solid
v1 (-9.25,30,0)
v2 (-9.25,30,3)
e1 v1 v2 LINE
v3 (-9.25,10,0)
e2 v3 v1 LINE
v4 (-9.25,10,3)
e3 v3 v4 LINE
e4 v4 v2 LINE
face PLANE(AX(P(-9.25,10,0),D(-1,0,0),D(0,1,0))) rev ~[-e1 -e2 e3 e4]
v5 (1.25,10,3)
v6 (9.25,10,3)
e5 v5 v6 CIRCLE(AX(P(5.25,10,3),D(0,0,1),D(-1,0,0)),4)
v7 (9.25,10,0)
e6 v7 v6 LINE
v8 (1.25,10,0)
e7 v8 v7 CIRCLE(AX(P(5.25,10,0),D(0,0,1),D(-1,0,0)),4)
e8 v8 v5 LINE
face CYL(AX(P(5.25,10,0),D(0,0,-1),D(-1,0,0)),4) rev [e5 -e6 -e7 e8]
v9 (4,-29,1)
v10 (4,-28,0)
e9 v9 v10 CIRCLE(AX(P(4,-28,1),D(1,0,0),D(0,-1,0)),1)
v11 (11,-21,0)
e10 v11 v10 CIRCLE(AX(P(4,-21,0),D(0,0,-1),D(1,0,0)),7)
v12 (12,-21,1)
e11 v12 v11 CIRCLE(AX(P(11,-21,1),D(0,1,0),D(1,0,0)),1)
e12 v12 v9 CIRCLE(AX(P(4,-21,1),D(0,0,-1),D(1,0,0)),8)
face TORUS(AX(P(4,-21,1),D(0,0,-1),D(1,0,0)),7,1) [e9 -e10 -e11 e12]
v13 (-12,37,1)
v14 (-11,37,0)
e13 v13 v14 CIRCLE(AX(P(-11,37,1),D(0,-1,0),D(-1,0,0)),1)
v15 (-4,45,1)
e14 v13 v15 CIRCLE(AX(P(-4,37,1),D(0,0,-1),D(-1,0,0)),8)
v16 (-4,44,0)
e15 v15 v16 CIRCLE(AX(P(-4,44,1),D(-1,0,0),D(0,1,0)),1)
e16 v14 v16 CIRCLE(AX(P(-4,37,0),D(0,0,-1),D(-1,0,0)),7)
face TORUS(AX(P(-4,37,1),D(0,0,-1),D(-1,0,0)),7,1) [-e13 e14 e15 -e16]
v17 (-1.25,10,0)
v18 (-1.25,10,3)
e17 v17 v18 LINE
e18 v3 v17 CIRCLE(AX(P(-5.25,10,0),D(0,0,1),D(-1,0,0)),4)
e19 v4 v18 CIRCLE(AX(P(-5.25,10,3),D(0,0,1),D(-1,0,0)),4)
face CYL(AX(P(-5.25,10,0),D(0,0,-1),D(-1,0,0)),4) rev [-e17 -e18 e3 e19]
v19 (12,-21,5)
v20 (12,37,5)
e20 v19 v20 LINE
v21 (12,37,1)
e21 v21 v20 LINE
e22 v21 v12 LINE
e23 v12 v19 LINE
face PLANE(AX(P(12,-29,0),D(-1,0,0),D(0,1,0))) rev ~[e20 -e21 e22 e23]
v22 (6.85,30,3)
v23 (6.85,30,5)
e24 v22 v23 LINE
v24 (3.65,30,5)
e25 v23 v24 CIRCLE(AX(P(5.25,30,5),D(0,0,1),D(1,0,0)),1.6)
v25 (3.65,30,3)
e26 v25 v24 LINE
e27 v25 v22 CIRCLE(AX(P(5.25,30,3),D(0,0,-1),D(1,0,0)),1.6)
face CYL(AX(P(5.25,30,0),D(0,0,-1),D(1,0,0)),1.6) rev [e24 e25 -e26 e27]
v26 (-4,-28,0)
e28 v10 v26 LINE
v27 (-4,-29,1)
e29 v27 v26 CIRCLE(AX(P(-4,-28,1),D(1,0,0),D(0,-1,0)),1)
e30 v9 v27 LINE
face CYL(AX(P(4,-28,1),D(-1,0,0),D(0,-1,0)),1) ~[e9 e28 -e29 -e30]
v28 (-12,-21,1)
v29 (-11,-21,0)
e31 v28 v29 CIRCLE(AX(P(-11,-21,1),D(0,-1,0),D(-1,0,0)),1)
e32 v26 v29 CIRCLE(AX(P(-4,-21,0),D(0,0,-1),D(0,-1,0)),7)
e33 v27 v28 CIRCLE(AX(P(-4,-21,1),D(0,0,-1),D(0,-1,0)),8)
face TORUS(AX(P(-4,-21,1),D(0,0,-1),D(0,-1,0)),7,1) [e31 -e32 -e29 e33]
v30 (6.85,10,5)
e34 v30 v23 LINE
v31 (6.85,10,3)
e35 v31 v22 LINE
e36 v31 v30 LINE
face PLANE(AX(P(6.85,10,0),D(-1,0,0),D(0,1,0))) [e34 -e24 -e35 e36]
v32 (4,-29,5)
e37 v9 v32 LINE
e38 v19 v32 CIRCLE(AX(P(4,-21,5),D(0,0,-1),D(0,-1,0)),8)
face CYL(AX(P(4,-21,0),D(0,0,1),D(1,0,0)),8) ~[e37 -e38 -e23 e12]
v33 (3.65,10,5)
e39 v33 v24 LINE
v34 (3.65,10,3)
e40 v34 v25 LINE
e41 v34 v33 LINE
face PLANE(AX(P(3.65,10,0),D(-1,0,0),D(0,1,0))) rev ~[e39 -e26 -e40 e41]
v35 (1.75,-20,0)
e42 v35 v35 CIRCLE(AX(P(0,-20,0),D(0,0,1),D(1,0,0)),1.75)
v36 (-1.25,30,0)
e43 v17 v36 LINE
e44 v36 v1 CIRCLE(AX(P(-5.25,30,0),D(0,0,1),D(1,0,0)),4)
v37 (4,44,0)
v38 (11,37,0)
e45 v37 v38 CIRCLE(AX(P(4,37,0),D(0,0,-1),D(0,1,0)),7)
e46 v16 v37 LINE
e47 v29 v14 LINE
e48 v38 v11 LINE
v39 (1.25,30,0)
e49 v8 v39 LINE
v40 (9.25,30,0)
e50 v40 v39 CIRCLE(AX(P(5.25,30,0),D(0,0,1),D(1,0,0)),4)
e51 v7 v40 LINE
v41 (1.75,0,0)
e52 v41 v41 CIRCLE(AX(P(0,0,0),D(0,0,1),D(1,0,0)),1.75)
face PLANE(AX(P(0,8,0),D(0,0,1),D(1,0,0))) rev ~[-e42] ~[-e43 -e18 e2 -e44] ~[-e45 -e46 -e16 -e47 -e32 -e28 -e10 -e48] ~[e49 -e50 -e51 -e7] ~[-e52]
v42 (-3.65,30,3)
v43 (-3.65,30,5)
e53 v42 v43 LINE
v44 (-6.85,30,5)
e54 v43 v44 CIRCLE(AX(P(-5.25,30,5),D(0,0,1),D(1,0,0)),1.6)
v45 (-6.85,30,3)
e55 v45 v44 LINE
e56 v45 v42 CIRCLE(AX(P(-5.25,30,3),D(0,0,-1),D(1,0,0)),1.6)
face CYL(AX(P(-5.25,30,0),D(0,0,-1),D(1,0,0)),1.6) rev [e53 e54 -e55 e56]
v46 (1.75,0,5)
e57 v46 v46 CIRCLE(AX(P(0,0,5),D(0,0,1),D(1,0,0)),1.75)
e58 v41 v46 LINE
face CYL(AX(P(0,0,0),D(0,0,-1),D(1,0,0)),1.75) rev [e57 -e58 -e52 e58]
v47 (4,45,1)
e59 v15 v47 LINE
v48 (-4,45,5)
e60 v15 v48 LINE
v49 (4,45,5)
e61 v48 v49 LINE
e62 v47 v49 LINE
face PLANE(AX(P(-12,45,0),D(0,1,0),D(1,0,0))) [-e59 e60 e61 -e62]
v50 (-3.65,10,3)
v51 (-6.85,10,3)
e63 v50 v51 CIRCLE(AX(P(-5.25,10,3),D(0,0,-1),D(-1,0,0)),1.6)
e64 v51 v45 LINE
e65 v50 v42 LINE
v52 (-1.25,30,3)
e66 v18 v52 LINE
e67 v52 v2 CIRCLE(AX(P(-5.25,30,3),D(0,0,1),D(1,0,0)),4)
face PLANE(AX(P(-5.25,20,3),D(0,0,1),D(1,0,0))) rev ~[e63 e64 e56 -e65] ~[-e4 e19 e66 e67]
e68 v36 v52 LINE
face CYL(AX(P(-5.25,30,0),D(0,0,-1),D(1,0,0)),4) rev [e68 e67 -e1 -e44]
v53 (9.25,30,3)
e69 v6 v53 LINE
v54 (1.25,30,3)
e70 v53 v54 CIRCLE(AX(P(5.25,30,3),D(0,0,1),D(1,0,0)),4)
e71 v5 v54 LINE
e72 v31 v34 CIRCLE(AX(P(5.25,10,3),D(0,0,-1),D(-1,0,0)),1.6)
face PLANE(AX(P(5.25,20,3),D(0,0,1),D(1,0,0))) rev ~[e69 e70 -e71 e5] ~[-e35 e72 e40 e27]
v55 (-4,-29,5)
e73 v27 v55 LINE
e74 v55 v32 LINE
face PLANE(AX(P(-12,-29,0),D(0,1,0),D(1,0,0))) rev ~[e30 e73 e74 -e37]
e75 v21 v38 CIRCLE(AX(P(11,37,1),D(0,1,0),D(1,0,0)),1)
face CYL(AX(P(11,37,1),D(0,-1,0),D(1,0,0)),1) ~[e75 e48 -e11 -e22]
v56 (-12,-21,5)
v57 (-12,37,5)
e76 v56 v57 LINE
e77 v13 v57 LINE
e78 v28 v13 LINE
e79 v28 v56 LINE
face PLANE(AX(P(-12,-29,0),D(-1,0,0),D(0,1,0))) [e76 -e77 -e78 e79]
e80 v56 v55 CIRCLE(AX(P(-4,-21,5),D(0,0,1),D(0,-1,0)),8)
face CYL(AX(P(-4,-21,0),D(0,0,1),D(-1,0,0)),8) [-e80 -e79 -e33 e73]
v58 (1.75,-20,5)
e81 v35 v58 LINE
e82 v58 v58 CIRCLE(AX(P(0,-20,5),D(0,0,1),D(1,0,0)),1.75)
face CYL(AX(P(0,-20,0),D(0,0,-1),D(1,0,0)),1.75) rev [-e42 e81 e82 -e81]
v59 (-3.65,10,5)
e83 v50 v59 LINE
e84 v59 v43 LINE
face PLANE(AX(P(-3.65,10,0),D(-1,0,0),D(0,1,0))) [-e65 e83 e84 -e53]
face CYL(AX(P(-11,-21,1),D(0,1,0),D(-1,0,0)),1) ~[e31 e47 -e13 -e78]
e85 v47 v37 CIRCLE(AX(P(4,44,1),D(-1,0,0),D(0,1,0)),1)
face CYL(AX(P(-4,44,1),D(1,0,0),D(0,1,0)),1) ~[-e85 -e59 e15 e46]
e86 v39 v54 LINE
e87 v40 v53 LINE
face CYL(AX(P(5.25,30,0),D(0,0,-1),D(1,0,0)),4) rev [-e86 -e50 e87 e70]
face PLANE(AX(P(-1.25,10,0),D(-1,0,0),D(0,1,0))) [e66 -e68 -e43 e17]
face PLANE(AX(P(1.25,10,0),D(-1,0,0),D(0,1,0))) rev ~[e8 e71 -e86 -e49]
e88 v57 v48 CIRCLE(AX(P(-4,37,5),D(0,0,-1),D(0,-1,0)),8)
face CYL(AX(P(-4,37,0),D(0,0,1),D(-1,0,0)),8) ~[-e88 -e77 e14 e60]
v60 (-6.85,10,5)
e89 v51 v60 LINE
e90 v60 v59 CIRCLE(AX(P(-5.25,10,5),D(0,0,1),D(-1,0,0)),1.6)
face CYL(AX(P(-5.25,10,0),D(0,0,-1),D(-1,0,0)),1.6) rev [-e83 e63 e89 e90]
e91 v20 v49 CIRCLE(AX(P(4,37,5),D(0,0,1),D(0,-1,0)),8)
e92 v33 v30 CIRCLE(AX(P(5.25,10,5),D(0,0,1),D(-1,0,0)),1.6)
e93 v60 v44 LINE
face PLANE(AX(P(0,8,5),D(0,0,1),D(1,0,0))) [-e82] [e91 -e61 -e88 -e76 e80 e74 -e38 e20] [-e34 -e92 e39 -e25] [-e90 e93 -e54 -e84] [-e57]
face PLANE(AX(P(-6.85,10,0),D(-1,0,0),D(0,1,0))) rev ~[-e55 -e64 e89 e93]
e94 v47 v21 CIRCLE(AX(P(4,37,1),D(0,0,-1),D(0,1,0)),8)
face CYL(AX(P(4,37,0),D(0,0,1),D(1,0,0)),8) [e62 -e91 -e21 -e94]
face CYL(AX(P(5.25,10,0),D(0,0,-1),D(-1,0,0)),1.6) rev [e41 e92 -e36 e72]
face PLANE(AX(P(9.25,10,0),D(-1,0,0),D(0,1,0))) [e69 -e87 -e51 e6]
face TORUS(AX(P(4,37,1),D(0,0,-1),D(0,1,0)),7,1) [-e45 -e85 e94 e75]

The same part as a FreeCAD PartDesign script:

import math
import FreeCAD as App
import Part
import Sketcher
from FreeCAD import Vector


def edges_at(feature, points):
    """Names of the edges that pass closest to the given points."""
    edges = feature.Shape.Edges
    near = lambda p: min(range(len(edges)), key=lambda i: edges[i].distToShape(Part.Vertex(*p))[0])
    return sorted({f"Edge{near(p) + 1}" for p in points})

doc = App.newDocument("Part")
body = doc.addObject("PartDesign::Body", "Body")

sketch1 = doc.addObject("Sketcher::SketchObject", "Sketch")
body.addObject(sketch1)
sketch1.AttachmentSupport = (doc.XY_Plane, [""])
sketch1.MapMode = "FlatFace"
sketch1.addGeometry(Part.LineSegment(Vector(-12, 45, 0), Vector(-12, -29, 0)), False)
sketch1.addGeometry(Part.LineSegment(Vector(-12, -29, 0), Vector(12, -29, 0)), False)
sketch1.addGeometry(Part.LineSegment(Vector(12, -29, 0), Vector(12, 45, 0)), False)
sketch1.addGeometry(Part.LineSegment(Vector(12, 45, 0), Vector(-12, 45, 0)), False)
sketch1.addGeometry(Part.Circle(Vector(0, -20, 0), Vector(0, 0, 1), 1.75), False)
sketch1.addGeometry(Part.Circle(Vector(0, 0, 0), Vector(0, 0, 1), 1.75), False)
sketch1.addGeometry(Part.ArcOfCircle(Part.Circle(Vector(-5.25, 10, 0), Vector(0, 0, 1), 1.6), math.radians(180), math.radians(360)), False)
sketch1.addGeometry(Part.LineSegment(Vector(-6.85, 10, 0), Vector(-6.85, 30, 0)), False)
sketch1.addGeometry(Part.ArcOfCircle(Part.Circle(Vector(-5.25, 30, 0), Vector(0, 0, 1), 1.6), math.radians(0), math.radians(180)), False)
sketch1.addGeometry(Part.LineSegment(Vector(-3.65, 30, 0), Vector(-3.65, 10, 0)), False)
sketch1.addGeometry(Part.ArcOfCircle(Part.Circle(Vector(5.25, 10, 0), Vector(0, 0, 1), 1.6), math.radians(180), math.radians(360)), False)
sketch1.addGeometry(Part.LineSegment(Vector(3.65, 10, 0), Vector(3.65, 30, 0)), False)
sketch1.addGeometry(Part.ArcOfCircle(Part.Circle(Vector(5.25, 30, 0), Vector(0, 0, 1), 1.6), math.radians(0), math.radians(180)), False)
sketch1.addGeometry(Part.LineSegment(Vector(6.85, 30, 0), Vector(6.85, 10, 0)), False)
sketch1.addConstraint(Sketcher.Constraint("Coincident", 0, 2, 1, 1))
sketch1.addConstraint(Sketcher.Constraint("Coincident", 1, 2, 2, 1))
sketch1.addConstraint(Sketcher.Constraint("Coincident", 2, 2, 3, 1))
sketch1.addConstraint(Sketcher.Constraint("Coincident", 3, 2, 0, 1))
sketch1.addConstraint(Sketcher.Constraint("Tangent", 6, 1, 7, 1))
sketch1.addConstraint(Sketcher.Constraint("Tangent", 7, 2, 8, 2))
sketch1.addConstraint(Sketcher.Constraint("Tangent", 8, 1, 9, 1))
sketch1.addConstraint(Sketcher.Constraint("Tangent", 9, 2, 6, 2))
sketch1.addConstraint(Sketcher.Constraint("Tangent", 10, 1, 11, 1))
sketch1.addConstraint(Sketcher.Constraint("Tangent", 11, 2, 12, 2))
sketch1.addConstraint(Sketcher.Constraint("Tangent", 12, 1, 13, 1))
sketch1.addConstraint(Sketcher.Constraint("Tangent", 13, 2, 10, 2))
sketch1.addConstraint(Sketcher.Constraint("Vertical", 0))
sketch1.addConstraint(Sketcher.Constraint("Horizontal", 1))
sketch1.addConstraint(Sketcher.Constraint("Vertical", 2))
sketch1.addConstraint(Sketcher.Constraint("Horizontal", 3))
sketch1.addConstraint(Sketcher.Constraint("Vertical", 7))
sketch1.addConstraint(Sketcher.Constraint("Vertical", 9))
sketch1.addConstraint(Sketcher.Constraint("Vertical", 11))
sketch1.addConstraint(Sketcher.Constraint("Vertical", 13))
sketch1.addConstraint(Sketcher.Constraint("Coincident", 5, 3, -1, 1))
sketch1.addConstraint(Sketcher.Constraint("Equal", 4, 5))
sketch1.addConstraint(Sketcher.Constraint("Equal", 8, 10))
sketch1.addConstraint(Sketcher.Constraint("Symmetric", 6, 3, 10, 3, -2))
sketch1.addConstraint(Sketcher.Constraint("PointOnObject", 4, 3, -2))
sketch1.addConstraint(Sketcher.Constraint("Horizontal", 8, 3, 12, 3))
sketch1.addConstraint(Sketcher.Constraint("Diameter", 4, 3.5))
sketch1.addConstraint(Sketcher.Constraint("Radius", 6, 1.6))
sketch1.addConstraint(Sketcher.Constraint("DistanceX", 1, 1, 1, 2, 24.0))
sketch1.addConstraint(Sketcher.Constraint("DistanceY", 0, 2, 0, 1, 74.0))
sketch1.addConstraint(Sketcher.Constraint("DistanceY", 7, 1, 7, 2, 20.0))
sketch1.addConstraint(Sketcher.Constraint("DistanceY", 4, 3, -1, 1, 20.0))
sketch1.addConstraint(Sketcher.Constraint("DistanceY", -1, 1, 6, 3, 10.0))
sketch1.addConstraint(Sketcher.Constraint("DistanceX", 0, 2, -1, 1, 12.0))
sketch1.addConstraint(Sketcher.Constraint("DistanceY", 0, 2, -1, 1, 29.0))
sketch1.addConstraint(Sketcher.Constraint("DistanceX", 6, 3, 10, 3, 10.5))
pad1 = doc.addObject("PartDesign::Pad", "Pad")
body.addObject(pad1)
pad1.Profile = sketch1
pad1.Length = 5

sketch2 = doc.addObject("Sketcher::SketchObject", "Sketch001")
body.addObject(sketch2)
sketch2.AttachmentSupport = (doc.XY_Plane, [""])
sketch2.MapMode = "FlatFace"
sketch2.addGeometry(Part.Circle(Vector(0, 0, 0), Vector(0, 0, 1), 1.75), False)
sketch2.addGeometry(Part.Circle(Vector(0, -20, 0), Vector(0, 0, 1), 1.75), False)
sketch2.addGeometry(Part.ArcOfCircle(Part.Circle(Vector(5.25, 10, 0), Vector(0, 0, 1), 4), math.radians(180), math.radians(360)), False)
sketch2.addGeometry(Part.LineSegment(Vector(9.25, 10, 0), Vector(9.25, 30, 0)), False)
sketch2.addGeometry(Part.ArcOfCircle(Part.Circle(Vector(5.25, 30, 0), Vector(0, 0, 1), 4), math.radians(0), math.radians(180)), False)
sketch2.addGeometry(Part.LineSegment(Vector(1.25, 30, 0), Vector(1.25, 10, 0)), False)
sketch2.addGeometry(Part.ArcOfCircle(Part.Circle(Vector(-5.25, 10, 0), Vector(0, 0, 1), 4), math.radians(180), math.radians(360)), False)
sketch2.addGeometry(Part.LineSegment(Vector(-1.25, 10, 0), Vector(-1.25, 30, 0)), False)
sketch2.addGeometry(Part.ArcOfCircle(Part.Circle(Vector(-5.25, 30, 0), Vector(0, 0, 1), 4), math.radians(0), math.radians(180)), False)
sketch2.addGeometry(Part.LineSegment(Vector(-9.25, 30, 0), Vector(-9.25, 10, 0)), False)
sketch2.addConstraint(Sketcher.Constraint("Tangent", 2, 2, 3, 1))
sketch2.addConstraint(Sketcher.Constraint("Tangent", 3, 2, 4, 1))
sketch2.addConstraint(Sketcher.Constraint("Tangent", 4, 2, 5, 1))
sketch2.addConstraint(Sketcher.Constraint("Tangent", 5, 2, 2, 1))
sketch2.addConstraint(Sketcher.Constraint("Tangent", 6, 2, 7, 1))
sketch2.addConstraint(Sketcher.Constraint("Tangent", 7, 2, 8, 1))
sketch2.addConstraint(Sketcher.Constraint("Tangent", 8, 2, 9, 1))
sketch2.addConstraint(Sketcher.Constraint("Tangent", 9, 2, 6, 1))
sketch2.addConstraint(Sketcher.Constraint("Vertical", 3))
sketch2.addConstraint(Sketcher.Constraint("Vertical", 5))
sketch2.addConstraint(Sketcher.Constraint("Vertical", 7))
sketch2.addConstraint(Sketcher.Constraint("Vertical", 9))
sketch2.addConstraint(Sketcher.Constraint("Coincident", 0, 3, -1, 1))
sketch2.addConstraint(Sketcher.Constraint("Equal", 0, 1))
sketch2.addConstraint(Sketcher.Constraint("Equal", 4, 6))
sketch2.addConstraint(Sketcher.Constraint("Symmetric", 2, 3, 6, 3, -2))
sketch2.addConstraint(Sketcher.Constraint("PointOnObject", 1, 3, -2))
sketch2.addConstraint(Sketcher.Constraint("Horizontal", 4, 3, 8, 3))
sketch2.addConstraint(Sketcher.Constraint("Radius", 2, 4.0))
sketch2.addConstraint(Sketcher.Constraint("Diameter", 0, 3.5))
sketch2.addConstraint(Sketcher.Constraint("DistanceY", 3, 1, 3, 2, 20.0))
sketch2.addConstraint(Sketcher.Constraint("DistanceY", 1, 3, -1, 1, 20.0))
sketch2.addConstraint(Sketcher.Constraint("DistanceY", -1, 1, 2, 3, 10.0))
sketch2.addConstraint(Sketcher.Constraint("DistanceX", 6, 3, 2, 3, 10.5))
pocket1 = doc.addObject("PartDesign::Pocket", "Pocket")
body.addObject(pocket1)
pocket1.Profile = sketch2
pocket1.Length = 3
pocket1.Reversed = True
doc.recompute()

fillet = doc.addObject("PartDesign::Fillet", "Fillet")
body.addObject(fillet)
fillet.Base = (pocket1, edges_at(pocket1, [
    (-12, -29, 2.5),
    (12, -29, 2.5),
    (12, 45, 2.5),
    (-12, 45, 2.5),
]))
fillet.Radius = 8
doc.recompute()

fillet2 = doc.addObject("PartDesign::Fillet", "Fillet001")
body.addObject(fillet2)
fillet2.Base = (fillet, edges_at(fillet, [
    (-12, 8, 0),
    (-9.657, -26.657, 0),
    (0, -29, 0),
    (9.657, -26.657, 0),
    (12, 8, 0),
    (0, 45, 0),
    (-9.657, 42.657, 0),
    (9.657, 42.657, 0),
]))
fillet2.Radius = 1

doc.recompute()
